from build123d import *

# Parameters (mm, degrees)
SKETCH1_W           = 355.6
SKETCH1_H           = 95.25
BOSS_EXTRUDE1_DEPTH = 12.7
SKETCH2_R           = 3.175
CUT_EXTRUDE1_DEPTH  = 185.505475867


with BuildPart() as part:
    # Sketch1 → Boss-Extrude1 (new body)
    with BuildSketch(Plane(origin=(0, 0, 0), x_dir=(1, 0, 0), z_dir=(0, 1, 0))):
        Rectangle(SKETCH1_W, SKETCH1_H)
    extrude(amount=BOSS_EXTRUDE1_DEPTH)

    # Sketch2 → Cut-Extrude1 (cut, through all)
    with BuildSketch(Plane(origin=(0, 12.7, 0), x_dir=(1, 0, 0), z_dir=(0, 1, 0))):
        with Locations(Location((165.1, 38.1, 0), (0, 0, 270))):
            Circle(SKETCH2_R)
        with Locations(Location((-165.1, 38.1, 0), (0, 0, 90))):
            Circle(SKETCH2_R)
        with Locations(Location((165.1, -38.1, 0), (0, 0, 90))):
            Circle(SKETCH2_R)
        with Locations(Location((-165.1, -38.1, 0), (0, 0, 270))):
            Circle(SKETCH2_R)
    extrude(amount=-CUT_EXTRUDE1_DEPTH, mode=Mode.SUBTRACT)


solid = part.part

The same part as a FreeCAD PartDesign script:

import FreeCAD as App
import Part
import Sketcher
Q = App.Units.Quantity


def add_polygon(sketch, points):
    """Adds a closed chain of lines whose ends are joined by coincident constraints."""
    first, n = sketch.GeometryCount, len(points)
    for a, b in zip(points, points[1:] + points[:1]):
        sketch.addGeometry(Part.LineSegment(App.Vector(*a, 0), App.Vector(*b, 0)), False)
    for i in range(n):
        sketch.addConstraint(Sketcher.Constraint("Coincident", first + i, 2, first + (i + 1) % n, 1))

doc = App.newDocument("Part")
params = doc.addObject("Spreadsheet::Sheet", "Params")
for row, (alias, value) in enumerate([
    ("sketch1_width", "14 in"),
    ("sketch1_height", "3.75 in"),
    ("pad1_length", "0.5 in"),
    ("sketch2_diameter", "0.25 in"),
], start=1):
    params.set(f"A{row}", alias)
    params.set(f"B{row}", "=" + value)
    params.setAlias(f"B{row}", alias)

body = doc.addObject("PartDesign::Body", "Body")

sketch1 = body.newObject("Sketcher::SketchObject", "Sketch")
sketch1.AttachmentSupport = (doc.getObject("XZ_Plane"), [""])
sketch1.MapMode = "FlatFace"
add_polygon(sketch1, [(-178, -48), (-178, 48), (178, 48), (178, -48)])
sketch1.addConstraint([
    Sketcher.Constraint("Vertical", 0),
    Sketcher.Constraint("Horizontal", 1),
    Sketcher.Constraint("Vertical", 2),
    Sketcher.Constraint("Horizontal", 3),
    Sketcher.Constraint("Symmetric", 0, 2, 2, 2, -1, 1),
    Sketcher.Constraint("DistanceX", 1, 1, 1, 2, Q("14 in")),
    Sketcher.Constraint("DistanceY", 0, 1, 0, 2, Q("3.75 in")),
])
sketch1.setExpression("Constraints[9]", "Params.sketch1_width")
sketch1.setExpression("Constraints[10]", "Params.sketch1_height")
pad1 = body.newObject("PartDesign::Pad", "Pad")
pad1.Profile = sketch1
pad1.setExpression("Length", "Params.pad1_length")
pad1.Reversed = True

sketch2 = body.newObject("Sketcher::SketchObject", "Sketch001")
sketch2.AttachmentSupport = (doc.getObject("XZ_Plane"), [""])
sketch2.MapMode = "FlatFace"
sketch2.AttachmentOffset = App.Placement(App.Vector(0, 0, -0.5 * 25.4), App.Rotation())
sketch2.addGeometry([
    Part.Circle(App.Vector(165.1, -38.1, 0), App.Vector(0, 0, 1), 3.2),
    Part.Circle(App.Vector(-165.1, -38.1, 0), App.Vector(0, 0, 1), 3.2),
    Part.Circle(App.Vector(165.1, 38.1, 0), App.Vector(0, 0, 1), 3.2),
    Part.Circle(App.Vector(-165.1, 38.1, 0), App.Vector(0, 0, 1), 3.2),
], False)
sketch2.addConstraint([
    Sketcher.Constraint("Equal", 0, 1),
    Sketcher.Constraint("Equal", 1, 2),
    Sketcher.Constraint("Equal", 2, 3),
    Sketcher.Constraint("Symmetric", 1, 3, 2, 3, -1, 1),
    Sketcher.Constraint("Symmetric", 0, 3, 3, 3, -1, 1),
    Sketcher.Constraint("Symmetric", 0, 3, 1, 3, -2),
    Sketcher.Constraint("Diameter", 0, Q("0.25 in")),
    Sketcher.Constraint("DistanceX", 1, 3, 0, 3, Q("13 in")),
    Sketcher.Constraint("DistanceY", 0, 3, 2, 3, Q("3 in")),
])
sketch2.setExpression("Constraints[6]", "Params.sketch2_diameter")
pocket1 = body.newObject("PartDesign::Pocket", "Pocket")
pocket1.Profile = sketch2
pocket1.Type = "ThroughAll"
pocket1.Reversed = True

doc.recompute()
